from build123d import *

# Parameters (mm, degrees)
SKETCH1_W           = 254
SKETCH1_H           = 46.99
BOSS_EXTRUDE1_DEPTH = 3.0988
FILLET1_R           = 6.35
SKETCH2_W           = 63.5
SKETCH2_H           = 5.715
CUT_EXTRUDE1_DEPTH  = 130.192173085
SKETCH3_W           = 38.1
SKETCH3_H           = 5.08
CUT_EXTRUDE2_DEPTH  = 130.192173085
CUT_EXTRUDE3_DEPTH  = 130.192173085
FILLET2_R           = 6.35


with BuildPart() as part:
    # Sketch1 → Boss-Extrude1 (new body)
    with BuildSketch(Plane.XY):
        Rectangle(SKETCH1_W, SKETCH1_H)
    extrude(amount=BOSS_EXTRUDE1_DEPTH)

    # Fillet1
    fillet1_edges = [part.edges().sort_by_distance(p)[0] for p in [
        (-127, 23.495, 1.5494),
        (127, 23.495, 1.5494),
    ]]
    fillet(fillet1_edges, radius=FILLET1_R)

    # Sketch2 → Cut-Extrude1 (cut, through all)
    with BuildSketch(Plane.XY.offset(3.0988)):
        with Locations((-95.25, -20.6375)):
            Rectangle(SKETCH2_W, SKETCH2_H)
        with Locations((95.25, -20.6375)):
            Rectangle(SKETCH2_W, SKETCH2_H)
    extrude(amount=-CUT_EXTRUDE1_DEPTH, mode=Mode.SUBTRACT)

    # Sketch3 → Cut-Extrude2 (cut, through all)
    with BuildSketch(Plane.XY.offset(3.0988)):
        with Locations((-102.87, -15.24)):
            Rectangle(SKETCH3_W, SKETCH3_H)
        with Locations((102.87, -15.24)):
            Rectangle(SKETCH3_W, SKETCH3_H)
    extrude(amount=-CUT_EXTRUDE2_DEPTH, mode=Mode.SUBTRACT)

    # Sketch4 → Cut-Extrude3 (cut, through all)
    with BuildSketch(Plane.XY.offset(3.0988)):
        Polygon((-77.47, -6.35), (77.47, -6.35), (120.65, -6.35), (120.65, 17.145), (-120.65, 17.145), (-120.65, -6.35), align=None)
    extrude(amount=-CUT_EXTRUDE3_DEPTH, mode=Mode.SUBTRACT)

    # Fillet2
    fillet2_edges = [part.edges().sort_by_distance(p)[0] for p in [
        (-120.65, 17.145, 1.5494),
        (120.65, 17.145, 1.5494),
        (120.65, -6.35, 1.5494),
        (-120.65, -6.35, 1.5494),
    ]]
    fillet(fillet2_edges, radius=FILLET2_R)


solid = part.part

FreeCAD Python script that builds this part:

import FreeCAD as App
import Part
import Sketcher
from FreeCAD import Vector
Q = App.Units.Quantity


def edges_at(feature, points):
    """Names of the edges that pass closest to the given points."""
    edges = feature.Shape.Edges
    near = lambda p: min(range(len(edges)), key=lambda i: edges[i].distToShape(Part.Vertex(*p))[0])
    return sorted({f"Edge{near(p) + 1}" for p in points})

doc = App.newDocument("Part")
body = doc.addObject("PartDesign::Body", "Body")

# Sketch on XY plane
sketch1 = body.newObject("Sketcher::SketchObject", "Sketch")
sketch1.AttachmentSupport = (doc.getObject("XY_Plane"), [""])
sketch1.MapMode = "FlatFace"
sketch1.addGeometry([
    Part.LineSegment(Vector(-127, 23, 0), Vector(-127, -23, 0)),
    Part.LineSegment(Vector(-127, -23, 0), Vector(127, -23, 0)),
    Part.LineSegment(Vector(127, -23, 0), Vector(127, 23, 0)),
    Part.LineSegment(Vector(127, 23, 0), Vector(-127, 23, 0)),
], False)
sketch1.addConstraint([
    Sketcher.Constraint("Coincident", 0, 2, 1, 1),
    Sketcher.Constraint("Coincident", 1, 2, 2, 1),
    Sketcher.Constraint("Coincident", 2, 2, 3, 1),
    Sketcher.Constraint("Coincident", 3, 2, 0, 1),
    Sketcher.Constraint("Vertical", 0),
    Sketcher.Constraint("Horizontal", 1),
    Sketcher.Constraint("Vertical", 2),
    Sketcher.Constraint("Horizontal", 3),
    Sketcher.Constraint("Symmetric", 0, 2, 2, 2, -1, 1),
    Sketcher.Constraint("DistanceX", 1, 1, 1, 2, Q("10 in")),
    Sketcher.Constraint("DistanceY", 0, 2, 0, 1, Q("1.85 in")),
])
pad1 = body.newObject("PartDesign::Pad", "Pad")
pad1.Profile = sketch1
pad1.Length = Q("0.122 in")
doc.recompute()

fillet = body.newObject("PartDesign::Fillet", "Fillet")
fillet.Base = (pad1, edges_at(pad1, [(-127, 23.495, 1.549), (127, 23.495, 1.549)]))
fillet.Radius = Q("0.25 in")

# Sketch on XY plane
sketch2 = body.newObject("Sketcher::SketchObject", "Sketch001")
sketch2.AttachmentSupport = (doc.getObject("XY_Plane"), [""])
sketch2.MapMode = "FlatFace"
sketch2.AttachmentOffset = App.Placement(Vector(0, 0, 0.122 * 25.4), App.Rotation())
sketch2.addGeometry([
    Part.LineSegment(Vector(-127, -18, 0), Vector(-127, -23, 0)),  # 0
    Part.LineSegment(Vector(-127, -23, 0), Vector(-64, -23, 0)),  # 1
    Part.LineSegment(Vector(-64, -23, 0), Vector(-64, -18, 0)),  # 2
    Part.LineSegment(Vector(-64, -18, 0), Vector(-127, -18, 0)),  # 3
    Part.LineSegment(Vector(64, -18, 0), Vector(64, -23, 0)),  # 4
    Part.LineSegment(Vector(64, -23, 0), Vector(127, -23, 0)),  # 5
    Part.LineSegment(Vector(127, -23, 0), Vector(127, -18, 0)),  # 6
    Part.LineSegment(Vector(127, -18, 0), Vector(64, -18, 0)),  # 7
], False)
sketch2.addConstraint([
    Sketcher.Constraint("Coincident", 0, 2, 1, 1),
    Sketcher.Constraint("Coincident", 1, 2, 2, 1),
    Sketcher.Constraint("Coincident", 2, 2, 3, 1),
    Sketcher.Constraint("Coincident", 3, 2, 0, 1),
    Sketcher.Constraint("Coincident", 4, 2, 5, 1),
    Sketcher.Constraint("Coincident", 5, 2, 6, 1),
    Sketcher.Constraint("Coincident", 6, 2, 7, 1),
    Sketcher.Constraint("Coincident", 7, 2, 4, 1),
    Sketcher.Constraint("Vertical", 0),
    Sketcher.Constraint("Horizontal", 1),
    Sketcher.Constraint("Vertical", 2),
    Sketcher.Constraint("Horizontal", 3),
    Sketcher.Constraint("Vertical", 4),
    Sketcher.Constraint("Horizontal", 5),
    Sketcher.Constraint("Vertical", 6),
    Sketcher.Constraint("Horizontal", 7),
    Sketcher.Constraint("Symmetric", 1, 2, 4, 2, -2),
    Sketcher.Constraint("Symmetric", 3, 2, 6, 2, -2),
    Sketcher.Constraint("DistanceX", 1, 1, 1, 2, Q("2.5 in")),
    Sketcher.Constraint("DistanceX", 0, 2, -1, 1, Q("5 in")),
    Sketcher.Constraint("DistanceY", 2, 2, -1, 1, Q("0.7 in")),
    Sketcher.Constraint("DistanceY", 0, 2, 0, 1, Q("0.225 in")),
])
pocket1 = body.newObject("PartDesign::Pocket", "Pocket")
pocket1.Profile = sketch2
pocket1.Type = "ThroughAll"

# Sketch on XY plane
sketch3 = body.newObject("Sketcher::SketchObject", "Sketch002")
sketch3.AttachmentSupport = (doc.getObject("XY_Plane"), [""])
sketch3.MapMode = "FlatFace"
sketch3.AttachmentOffset = App.Placement(Vector(0, 0, 0.122 * 25.4), App.Rotation())
sketch3.addGeometry([
    Part.LineSegment(Vector(-122, -13, 0), Vector(-122, -18, 0)),  # 0
    Part.LineSegment(Vector(-122, -18, 0), Vector(-84, -18, 0)),  # 1
    Part.LineSegment(Vector(-84, -18, 0), Vector(-84, -13, 0)),  # 2
    Part.LineSegment(Vector(-84, -13, 0), Vector(-122, -13, 0)),  # 3
    Part.LineSegment(Vector(84, -13, 0), Vector(84, -18, 0)),  # 4
    Part.LineSegment(Vector(84, -18, 0), Vector(122, -18, 0)),  # 5
    Part.LineSegment(Vector(122, -18, 0), Vector(122, -13, 0)),  # 6
    Part.LineSegment(Vector(122, -13, 0), Vector(84, -13, 0)),  # 7
], False)
sketch3.addConstraint([
    Sketcher.Constraint("Coincident", 0, 2, 1, 1),
    Sketcher.Constraint("Coincident", 1, 2, 2, 1),
    Sketcher.Constraint("Coincident", 2, 2, 3, 1),
    Sketcher.Constraint("Coincident", 3, 2, 0, 1),
    Sketcher.Constraint("Coincident", 4, 2, 5, 1),
    Sketcher.Constraint("Coincident", 5, 2, 6, 1),
    Sketcher.Constraint("Coincident", 6, 2, 7, 1),
    Sketcher.Constraint("Coincident", 7, 2, 4, 1),
    Sketcher.Constraint("Vertical", 0),
    Sketcher.Constraint("Horizontal", 1),
    Sketcher.Constraint("Vertical", 2),
    Sketcher.Constraint("Horizontal", 3),
    Sketcher.Constraint("Vertical", 4),
    Sketcher.Constraint("Horizontal", 5),
    Sketcher.Constraint("Vertical", 6),
    Sketcher.Constraint("Horizontal", 7),
    Sketcher.Constraint("Symmetric", 1, 2, 4, 2, -2),
    Sketcher.Constraint("Symmetric", 3, 2, 6, 2, -2),
    Sketcher.Constraint("DistanceX", 1, 1, 1, 2, Q("1.5 in")),
    Sketcher.Constraint("DistanceY", 0, 2, 0, 1, Q("0.2 in")),
    Sketcher.Constraint("DistanceX", 0, 2, -1, 1, Q("4.8 in")),
    Sketcher.Constraint("DistanceY", 0, 2, -1, 1, Q("0.7 in")),
])
pocket2 = body.newObject("PartDesign::Pocket", "Pocket001")
pocket2.Profile = sketch3
pocket2.Type = "ThroughAll"

# Sketch on XY plane
sketch4 = body.newObject("Sketcher::SketchObject", "Sketch003")
sketch4.AttachmentSupport = (doc.getObject("XY_Plane"), [""])
sketch4.MapMode = "FlatFace"
sketch4.AttachmentOffset = App.Placement(Vector(0, 0, 0.122 * 25.4), App.Rotation())
sketch4.addGeometry([
    Part.LineSegment(Vector(121, -6, 0), Vector(121, 17, 0)),
    Part.LineSegment(Vector(121, 17, 0), Vector(-121, 17, 0)),
    Part.LineSegment(Vector(-121, 17, 0), Vector(-121, -6, 0)),
    Part.LineSegment(Vector(-121, -6, 0), Vector(121, -6, 0)),
], False)
sketch4.addConstraint([
    Sketcher.Constraint("Coincident", 0, 2, 1, 1),
    Sketcher.Constraint("Coincident", 1, 2, 2, 1),
    Sketcher.Constraint("Coincident", 2, 2, 3, 1),
    Sketcher.Constraint("Coincident", 3, 2, 0, 1),
    Sketcher.Constraint("Vertical", 0),
    Sketcher.Constraint("Horizontal", 1),
    Sketcher.Constraint("Vertical", 2),
    Sketcher.Constraint("Horizontal", 3),
    Sketcher.Constraint("DistanceX", 1, 2, 1, 1, Q("9.5 in")),
    Sketcher.Constraint("DistanceY", 0, 1, 0, 2, Q("0.925 in")),
    Sketcher.Constraint("DistanceX", -1, 1, 0, 2, Q("4.75 in")),
    Sketcher.Constraint("DistanceY", 2, 2, -1, 1, Q("0.25 in")),
])
pocket3 = body.newObject("PartDesign::Pocket", "Pocket002")
pocket3.Profile = sketch4
pocket3.Type = "ThroughAll"
doc.recompute()

fillet2 = body.newObject("PartDesign::Fillet", "Fillet001")
fillet2.Base = (pocket3, edges_at(pocket3, [
    (-120.65, 17.145, 1.549),
    (120.65, 17.145, 1.549),
    (120.65, -6.35, 1.549),
    (-120.65, -6.35, 1.549),
]))
fillet2.Radius = Q("0.25 in")

doc.recompute()
